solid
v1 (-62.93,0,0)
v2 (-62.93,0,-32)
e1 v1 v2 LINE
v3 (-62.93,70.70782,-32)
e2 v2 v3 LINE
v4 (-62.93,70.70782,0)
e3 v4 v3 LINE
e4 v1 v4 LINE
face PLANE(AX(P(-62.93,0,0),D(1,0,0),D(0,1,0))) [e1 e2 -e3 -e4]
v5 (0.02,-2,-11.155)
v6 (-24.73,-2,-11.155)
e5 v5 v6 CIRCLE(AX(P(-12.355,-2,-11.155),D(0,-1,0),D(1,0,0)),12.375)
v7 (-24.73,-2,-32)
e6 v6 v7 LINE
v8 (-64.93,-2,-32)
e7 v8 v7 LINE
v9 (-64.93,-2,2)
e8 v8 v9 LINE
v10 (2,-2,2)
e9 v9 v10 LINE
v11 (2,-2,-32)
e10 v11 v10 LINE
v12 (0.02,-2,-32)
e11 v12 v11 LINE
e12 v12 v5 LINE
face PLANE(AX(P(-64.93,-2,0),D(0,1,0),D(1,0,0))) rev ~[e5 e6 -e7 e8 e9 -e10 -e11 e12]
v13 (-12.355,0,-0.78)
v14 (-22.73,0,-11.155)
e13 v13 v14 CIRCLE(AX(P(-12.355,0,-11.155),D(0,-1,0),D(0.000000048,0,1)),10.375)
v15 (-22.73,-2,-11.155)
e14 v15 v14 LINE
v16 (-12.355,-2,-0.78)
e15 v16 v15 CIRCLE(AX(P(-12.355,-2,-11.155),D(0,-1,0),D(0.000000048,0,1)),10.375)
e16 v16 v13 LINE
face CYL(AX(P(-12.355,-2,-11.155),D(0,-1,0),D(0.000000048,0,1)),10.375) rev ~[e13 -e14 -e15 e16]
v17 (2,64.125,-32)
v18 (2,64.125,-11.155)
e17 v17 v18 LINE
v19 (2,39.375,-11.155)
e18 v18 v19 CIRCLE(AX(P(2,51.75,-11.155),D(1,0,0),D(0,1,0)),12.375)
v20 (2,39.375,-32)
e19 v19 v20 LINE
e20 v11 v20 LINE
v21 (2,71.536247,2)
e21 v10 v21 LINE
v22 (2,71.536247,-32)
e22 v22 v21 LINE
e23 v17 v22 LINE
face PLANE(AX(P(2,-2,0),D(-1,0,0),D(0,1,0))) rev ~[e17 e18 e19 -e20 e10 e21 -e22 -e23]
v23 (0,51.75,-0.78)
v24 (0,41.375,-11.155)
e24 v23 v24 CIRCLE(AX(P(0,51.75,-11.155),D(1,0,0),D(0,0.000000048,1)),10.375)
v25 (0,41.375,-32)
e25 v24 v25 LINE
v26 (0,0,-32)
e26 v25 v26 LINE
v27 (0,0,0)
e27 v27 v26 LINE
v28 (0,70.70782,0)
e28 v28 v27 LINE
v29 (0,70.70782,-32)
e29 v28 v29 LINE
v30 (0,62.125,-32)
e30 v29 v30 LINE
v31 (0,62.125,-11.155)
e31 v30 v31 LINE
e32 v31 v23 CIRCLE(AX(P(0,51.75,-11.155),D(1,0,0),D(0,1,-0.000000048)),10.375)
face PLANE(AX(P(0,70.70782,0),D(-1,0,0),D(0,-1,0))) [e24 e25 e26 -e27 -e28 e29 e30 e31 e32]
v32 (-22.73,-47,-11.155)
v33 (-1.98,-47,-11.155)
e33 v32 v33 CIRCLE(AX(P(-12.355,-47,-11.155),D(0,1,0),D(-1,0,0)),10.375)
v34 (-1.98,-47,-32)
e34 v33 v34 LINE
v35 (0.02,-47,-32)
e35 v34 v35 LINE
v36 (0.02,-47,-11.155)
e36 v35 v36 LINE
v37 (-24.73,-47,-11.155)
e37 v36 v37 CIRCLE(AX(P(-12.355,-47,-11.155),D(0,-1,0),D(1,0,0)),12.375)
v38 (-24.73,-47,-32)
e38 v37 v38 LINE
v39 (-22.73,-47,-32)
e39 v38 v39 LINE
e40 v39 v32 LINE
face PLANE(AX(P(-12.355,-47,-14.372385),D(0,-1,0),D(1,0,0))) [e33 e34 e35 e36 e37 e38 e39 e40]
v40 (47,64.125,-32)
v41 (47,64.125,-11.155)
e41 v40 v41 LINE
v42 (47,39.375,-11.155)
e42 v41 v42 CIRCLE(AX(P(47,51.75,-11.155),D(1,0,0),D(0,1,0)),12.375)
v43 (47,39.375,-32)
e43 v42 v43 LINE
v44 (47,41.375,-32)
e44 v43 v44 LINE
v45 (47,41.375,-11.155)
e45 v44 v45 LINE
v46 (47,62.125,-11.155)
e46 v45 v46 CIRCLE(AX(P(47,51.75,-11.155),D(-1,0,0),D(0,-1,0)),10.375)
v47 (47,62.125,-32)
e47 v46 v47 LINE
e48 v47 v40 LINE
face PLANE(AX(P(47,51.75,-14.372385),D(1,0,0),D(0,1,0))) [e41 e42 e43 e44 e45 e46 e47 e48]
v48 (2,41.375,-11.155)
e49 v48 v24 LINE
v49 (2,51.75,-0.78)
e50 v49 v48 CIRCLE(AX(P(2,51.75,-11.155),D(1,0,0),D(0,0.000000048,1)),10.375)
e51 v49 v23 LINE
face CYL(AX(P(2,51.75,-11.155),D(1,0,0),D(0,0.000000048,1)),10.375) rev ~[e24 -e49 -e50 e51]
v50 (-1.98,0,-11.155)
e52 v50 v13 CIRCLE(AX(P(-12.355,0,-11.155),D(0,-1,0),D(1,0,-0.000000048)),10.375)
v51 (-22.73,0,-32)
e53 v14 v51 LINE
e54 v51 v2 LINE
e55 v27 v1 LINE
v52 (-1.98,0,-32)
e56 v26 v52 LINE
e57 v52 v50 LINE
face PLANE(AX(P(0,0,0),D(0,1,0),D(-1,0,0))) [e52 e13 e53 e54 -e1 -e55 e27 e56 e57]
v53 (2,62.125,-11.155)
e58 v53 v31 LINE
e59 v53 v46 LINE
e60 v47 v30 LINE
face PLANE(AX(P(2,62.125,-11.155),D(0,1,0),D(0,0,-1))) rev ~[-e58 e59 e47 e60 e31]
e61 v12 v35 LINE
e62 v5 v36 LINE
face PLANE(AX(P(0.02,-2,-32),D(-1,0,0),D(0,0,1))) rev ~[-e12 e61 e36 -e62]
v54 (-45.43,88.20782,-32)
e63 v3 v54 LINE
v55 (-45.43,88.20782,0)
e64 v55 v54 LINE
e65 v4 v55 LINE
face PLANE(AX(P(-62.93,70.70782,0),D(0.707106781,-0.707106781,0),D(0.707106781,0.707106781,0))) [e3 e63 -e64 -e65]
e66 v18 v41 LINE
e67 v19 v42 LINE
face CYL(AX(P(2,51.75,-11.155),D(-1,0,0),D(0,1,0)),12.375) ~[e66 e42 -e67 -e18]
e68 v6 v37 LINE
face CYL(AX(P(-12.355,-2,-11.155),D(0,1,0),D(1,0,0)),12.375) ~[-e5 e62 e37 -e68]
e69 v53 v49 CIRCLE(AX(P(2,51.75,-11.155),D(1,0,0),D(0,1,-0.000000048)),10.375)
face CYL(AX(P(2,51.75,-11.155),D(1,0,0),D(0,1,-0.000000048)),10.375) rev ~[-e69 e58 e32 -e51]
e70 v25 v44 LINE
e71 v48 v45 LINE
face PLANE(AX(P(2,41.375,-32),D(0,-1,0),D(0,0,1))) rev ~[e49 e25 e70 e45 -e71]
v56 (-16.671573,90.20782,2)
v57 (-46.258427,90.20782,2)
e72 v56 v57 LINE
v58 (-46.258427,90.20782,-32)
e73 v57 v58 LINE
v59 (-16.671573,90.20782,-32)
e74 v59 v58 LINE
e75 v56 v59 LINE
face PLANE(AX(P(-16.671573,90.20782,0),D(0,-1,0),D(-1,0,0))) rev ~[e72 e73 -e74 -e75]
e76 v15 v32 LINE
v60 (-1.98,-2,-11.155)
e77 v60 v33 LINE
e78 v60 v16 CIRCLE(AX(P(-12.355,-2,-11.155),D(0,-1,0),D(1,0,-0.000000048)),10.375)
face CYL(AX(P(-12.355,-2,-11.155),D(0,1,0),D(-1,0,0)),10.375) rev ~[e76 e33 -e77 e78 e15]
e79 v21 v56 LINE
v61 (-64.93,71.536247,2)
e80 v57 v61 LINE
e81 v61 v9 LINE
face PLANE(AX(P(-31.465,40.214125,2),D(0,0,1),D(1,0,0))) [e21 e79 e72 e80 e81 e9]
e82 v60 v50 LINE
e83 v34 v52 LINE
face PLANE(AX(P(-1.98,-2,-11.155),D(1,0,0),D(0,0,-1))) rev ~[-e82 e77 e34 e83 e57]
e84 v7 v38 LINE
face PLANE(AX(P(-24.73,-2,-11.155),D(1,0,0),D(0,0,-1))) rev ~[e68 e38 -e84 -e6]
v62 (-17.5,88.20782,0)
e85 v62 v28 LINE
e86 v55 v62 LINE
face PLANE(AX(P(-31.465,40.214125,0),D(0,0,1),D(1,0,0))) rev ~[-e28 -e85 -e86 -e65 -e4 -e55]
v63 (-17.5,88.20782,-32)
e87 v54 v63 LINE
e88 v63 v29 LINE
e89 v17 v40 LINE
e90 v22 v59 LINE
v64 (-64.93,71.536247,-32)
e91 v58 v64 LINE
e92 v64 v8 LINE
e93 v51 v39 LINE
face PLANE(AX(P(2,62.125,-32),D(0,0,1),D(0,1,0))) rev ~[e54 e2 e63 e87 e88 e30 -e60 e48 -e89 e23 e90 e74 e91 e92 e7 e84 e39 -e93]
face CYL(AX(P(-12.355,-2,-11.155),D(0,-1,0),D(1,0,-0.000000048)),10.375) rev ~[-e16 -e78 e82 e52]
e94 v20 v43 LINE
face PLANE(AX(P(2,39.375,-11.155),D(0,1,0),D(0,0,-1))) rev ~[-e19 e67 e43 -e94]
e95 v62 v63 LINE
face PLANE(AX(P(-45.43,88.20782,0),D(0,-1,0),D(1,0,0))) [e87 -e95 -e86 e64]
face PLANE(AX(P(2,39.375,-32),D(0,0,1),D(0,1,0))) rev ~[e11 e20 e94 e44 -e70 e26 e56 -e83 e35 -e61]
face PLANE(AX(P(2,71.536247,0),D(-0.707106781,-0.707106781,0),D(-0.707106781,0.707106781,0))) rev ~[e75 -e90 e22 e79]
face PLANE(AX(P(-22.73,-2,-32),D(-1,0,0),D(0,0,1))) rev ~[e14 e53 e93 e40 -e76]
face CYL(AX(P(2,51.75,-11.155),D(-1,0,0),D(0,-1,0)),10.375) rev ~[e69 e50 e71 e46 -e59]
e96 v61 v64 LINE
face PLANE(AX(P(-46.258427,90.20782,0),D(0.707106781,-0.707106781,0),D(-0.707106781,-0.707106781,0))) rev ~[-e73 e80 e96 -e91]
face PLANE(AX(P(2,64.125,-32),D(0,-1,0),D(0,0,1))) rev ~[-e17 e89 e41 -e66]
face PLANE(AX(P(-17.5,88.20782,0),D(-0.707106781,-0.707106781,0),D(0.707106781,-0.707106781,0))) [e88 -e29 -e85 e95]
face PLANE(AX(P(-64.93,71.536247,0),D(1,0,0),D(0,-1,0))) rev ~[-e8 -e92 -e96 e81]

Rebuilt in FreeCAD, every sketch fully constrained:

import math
import FreeCAD as App
import Part
import Sketcher
from FreeCAD import Vector


def add_polygon(sketch, points):
    """Adds a closed chain of lines whose ends are joined by coincident constraints."""
    first, n = sketch.GeometryCount, len(points)
    for a, b in zip(points, points[1:] + points[:1]):
        sketch.addGeometry(Part.LineSegment(App.Vector(*a, 0), App.Vector(*b, 0)), False)
    for i in range(n):
        sketch.addConstraint(Sketcher.Constraint("Coincident", first + i, 2, first + (i + 1) % n, 1))

doc = App.newDocument("Part")
body = doc.addObject("PartDesign::Body", "Body")

# Sketch on XY plane
sketch1 = body.newObject("Sketcher::SketchObject", "Sketch")
sketch1.AttachmentSupport = (doc.getObject("XY_Plane"), [""])
sketch1.MapMode = "FlatFace"
add_polygon(sketch1, [(2, 72), (-17, 90), (-46, 90), (-65, 72), (-65, -2), (2, -2)])  # lines 0-5
add_polygon(sketch1, [(-18, 88), (0, 71), (0, 0), (-63, 0), (-63, 71), (-45, 88)])  # lines 6-11
sketch1.addConstraint(Sketcher.Constraint("Horizontal", 1))
sketch1.addConstraint(Sketcher.Constraint("Vertical", 3))
sketch1.addConstraint(Sketcher.Constraint("Horizontal", 4))
sketch1.addConstraint(Sketcher.Constraint("Vertical", 5))
sketch1.addConstraint(Sketcher.Constraint("Vertical", 7))
sketch1.addConstraint(Sketcher.Constraint("Horizontal", 8))
sketch1.addConstraint(Sketcher.Constraint("Vertical", 9))
sketch1.addConstraint(Sketcher.Constraint("Horizontal", 11))
sketch1.addConstraint(Sketcher.Constraint("Coincident", 7, 2, -1, 1))
sketch1.addConstraint(Sketcher.Constraint("Perpendicular", 0, 2))
sketch1.addConstraint(Sketcher.Constraint("Perpendicular", 2, 6))
sketch1.addConstraint(Sketcher.Constraint("Perpendicular", 6, 10))
sketch1.addConstraint(Sketcher.Constraint("Horizontal", 2, 2, 5, 2))
sketch1.addConstraint(Sketcher.Constraint("Horizontal", 6, 2, 9, 2))
sketch1.addConstraint(Sketcher.Constraint("Equal", 0, 2))
sketch1.addConstraint(Sketcher.Constraint("DistanceY", 3, 2, -1, 1, 2.0))
sketch1.addConstraint(Sketcher.Constraint("DistanceX", -1, 1, 4, 2, 2.0))
sketch1.addConstraint(Sketcher.Constraint("DistanceX", 3, 2, 8, 2, 2.0))
sketch1.addConstraint(Sketcher.Constraint("DistanceY", 10, 2, 1, 2, 2.0))
sketch1.addConstraint(Sketcher.Constraint("DistanceX", 4, 1, 4, 2, 66.93))
sketch1.addConstraint(Sketcher.Constraint("DistanceX", 11, 1, 11, 2, 27.93))
sketch1.addConstraint(Sketcher.Constraint("DistanceY", 7, 2, 7, 1, 70.70782))
sketch1.addConstraint(Sketcher.Constraint("Distance", 0, 26.405592))
pad1 = body.newObject("PartDesign::Pad", "Pad")
pad1.Profile = sketch1
pad1.Length = 32
pad1.Reversed = True

# Sketch on XY plane
sketch2 = body.newObject("Sketcher::SketchObject", "Sketch001")
sketch2.AttachmentSupport = (doc.getObject("XY_Plane"), [""])
sketch2.MapMode = "FlatFace"
add_polygon(sketch2, [(-65, 72), (-65, -2), (2, -2), (2, 72), (-17, 90), (-46, 90)])  # lines 0-5
sketch2.addConstraint(Sketcher.Constraint("Vertical", 0))
sketch2.addConstraint(Sketcher.Constraint("Horizontal", 1))
sketch2.addConstraint(Sketcher.Constraint("Vertical", 2))
sketch2.addConstraint(Sketcher.Constraint("Horizontal", 4))
sketch2.addConstraint(Sketcher.Constraint("Perpendicular", 3, 5))
sketch2.addConstraint(Sketcher.Constraint("Horizontal", 2, 2, 5, 2))
sketch2.addConstraint(Sketcher.Constraint("Equal", 3, 5))
sketch2.addConstraint(Sketcher.Constraint("DistanceY", 0, 2, -1, 1, 2.0))
sketch2.addConstraint(Sketcher.Constraint("DistanceX", -1, 1, 1, 2, 2.0))
sketch2.addConstraint(Sketcher.Constraint("DistanceX", 1, 1, 1, 2, 66.93))
sketch2.addConstraint(Sketcher.Constraint("Distance", 3, 26.405592))
sketch2.addConstraint(Sketcher.Constraint("DistanceY", 0, 2, 0, 1, 73.536247))
pad2 = body.newObject("PartDesign::Pad", "Pad001")
pad2.Profile = sketch2
pad2.Length = 2

# Sketch on XZ plane
sketch3 = body.newObject("Sketcher::SketchObject", "Sketch002")
sketch3.AttachmentSupport = (doc.getObject("XZ_Plane"), [""])
sketch3.MapMode = "FlatFace"
sketch3.AttachmentOffset = App.Placement(Vector(0, 0, 2), App.Rotation())
sketch3.addGeometry(Part.ArcOfCircle(Part.Circle(Vector(-12, -11, 0), Vector(0, 0, 1), 10), math.radians(90), math.radians(180)), False)
sketch3.addGeometry(Part.LineSegment(Vector(-23, -11, 0), Vector(-23, -32, 0)), False)
sketch3.addGeometry(Part.LineSegment(Vector(-23, -32, 0), Vector(-2, -32, 0)), False)
sketch3.addGeometry(Part.LineSegment(Vector(-2, -32, 0), Vector(-2, -11, 0)), False)
sketch3.addGeometry(Part.ArcOfCircle(Part.Circle(Vector(-12, -11, 0), Vector(0, 0, 1), 10), math.radians(0), math.radians(90)), False)
sketch3.addConstraint(Sketcher.Constraint("Tangent", 0, 2, 1, 1))
sketch3.addConstraint(Sketcher.Constraint("Coincident", 1, 2, 2, 1))
sketch3.addConstraint(Sketcher.Constraint("Coincident", 2, 2, 3, 1))
sketch3.addConstraint(Sketcher.Constraint("Tangent", 3, 2, 4, 1))
sketch3.addConstraint(Sketcher.Constraint("Tangent", 4, 2, 0, 1))
sketch3.addConstraint(Sketcher.Constraint("Vertical", 1))
sketch3.addConstraint(Sketcher.Constraint("Horizontal", 2))
sketch3.addConstraint(Sketcher.Constraint("Vertical", 3))
sketch3.addConstraint(Sketcher.Constraint("Equal", 0, 4))
sketch3.addConstraint(Sketcher.Constraint("Vertical", 0, 3, 4, 2))
sketch3.addConstraint(Sketcher.Constraint("DistanceY", 1, 2, -1, 1, 32.0))
sketch3.addConstraint(Sketcher.Constraint("Radius", 0, 10.375))
sketch3.addConstraint(Sketcher.Constraint("DistanceY", 1, 2, 1, 1, 20.845))
sketch3.addConstraint(Sketcher.Constraint("DistanceX", 0, 2, -1, 1, 22.73))
pocket1 = body.newObject("PartDesign::Pocket", "Pocket")
pocket1.Profile = sketch3
pocket1.Length = 2

# Sketch on YZ plane
sketch4 = body.newObject("Sketcher::SketchObject", "Sketch003")
sketch4.AttachmentSupport = (doc.getObject("YZ_Plane"), [""])
sketch4.MapMode = "FlatFace"
sketch4.AttachmentOffset = App.Placement(Vector(0, 0, 2), App.Rotation())
sketch4.addGeometry(Part.LineSegment(Vector(62, -32, 0), Vector(62, -11, 0)), False)
sketch4.addGeometry(Part.ArcOfCircle(Part.Circle(Vector(52, -11, 0), Vector(0, 0, 1), 10), math.radians(0), math.radians(90)), False)
sketch4.addGeometry(Part.ArcOfCircle(Part.Circle(Vector(52, -11, 0), Vector(0, 0, 1), 10), math.radians(90), math.radians(180)), False)
sketch4.addGeometry(Part.LineSegment(Vector(41, -11, 0), Vector(41, -32, 0)), False)
sketch4.addGeometry(Part.LineSegment(Vector(41, -32, 0), Vector(62, -32, 0)), False)
sketch4.addConstraint(Sketcher.Constraint("Tangent", 0, 2, 1, 1))
sketch4.addConstraint(Sketcher.Constraint("Tangent", 1, 2, 2, 1))
sketch4.addConstraint(Sketcher.Constraint("Tangent", 2, 2, 3, 1))
sketch4.addConstraint(Sketcher.Constraint("Coincident", 3, 2, 4, 1))
sketch4.addConstraint(Sketcher.Constraint("Coincident", 4, 2, 0, 1))
sketch4.addConstraint(Sketcher.Constraint("Vertical", 0))
sketch4.addConstraint(Sketcher.Constraint("Vertical", 3))
sketch4.addConstraint(Sketcher.Constraint("Horizontal", 4))
sketch4.addConstraint(Sketcher.Constraint("Equal", 1, 2))
sketch4.addConstraint(Sketcher.Constraint("Vertical", 2, 3, 1, 2))
sketch4.addConstraint(Sketcher.Constraint("DistanceY", 3, 2, -1, 1, 32.0))
sketch4.addConstraint(Sketcher.Constraint("Radius", 1, 10.375))
sketch4.addConstraint(Sketcher.Constraint("DistanceY", 0, 1, 0, 2, 20.845))
sketch4.addConstraint(Sketcher.Constraint("DistanceX", -1, 1, 1, 3, 51.75))
pocket2 = body.newObject("PartDesign::Pocket", "Pocket001")
pocket2.Profile = sketch4
pocket2.Length = 2

# Sketch on XZ plane
sketch5 = body.newObject("Sketcher::SketchObject", "Sketch004")
sketch5.AttachmentSupport = (doc.getObject("XZ_Plane"), [""])
sketch5.MapMode = "FlatFace"
sketch5.AttachmentOffset = App.Placement(Vector(0, 0, 2), App.Rotation())
sketch5.addGeometry(Part.ArcOfCircle(Part.Circle(Vector(-12.4, -11.2, 0), Vector(0, 0, 1), 12.4), math.radians(0), math.radians(180)), False)
sketch5.addGeometry(Part.LineSegment(Vector(-24.7, -11.2, 0), Vector(-24.7, -32, 0)), False)
sketch5.addGeometry(Part.LineSegment(Vector(-24.7, -32, 0), Vector(-22.7, -32, 0)), False)
sketch5.addGeometry(Part.LineSegment(Vector(-22.7, -32, 0), Vector(-22.7, -11.2, 0)), False)
sketch5.addGeometry(Part.ArcOfCircle(Part.Circle(Vector(-12.4, -11.2, 0), Vector(0, 0, 1), 10.4), math.radians(0), math.radians(180)), False)
sketch5.addGeometry(Part.LineSegment(Vector(-2, -11.2, 0), Vector(-2, -32, 0)), False)
sketch5.addGeometry(Part.LineSegment(Vector(-2, -32, 0), Vector(0, -32, 0)), False)
sketch5.addGeometry(Part.LineSegment(Vector(0, -32, 0), Vector(0, -11.2, 0)), False)
sketch5.addConstraint(Sketcher.Constraint("Tangent", 0, 2, 1, 1))
sketch5.addConstraint(Sketcher.Constraint("Coincident", 1, 2, 2, 1))
sketch5.addConstraint(Sketcher.Constraint("Coincident", 2, 2, 3, 1))
sketch5.addConstraint(Sketcher.Constraint("Tangent", 3, 2, 4, 2))
sketch5.addConstraint(Sketcher.Constraint("Tangent", 4, 1, 5, 1))
sketch5.addConstraint(Sketcher.Constraint("Coincident", 5, 2, 6, 1))
sketch5.addConstraint(Sketcher.Constraint("Coincident", 6, 2, 7, 1))
sketch5.addConstraint(Sketcher.Constraint("Tangent", 7, 2, 0, 1))
sketch5.addConstraint(Sketcher.Constraint("Vertical", 1))
sketch5.addConstraint(Sketcher.Constraint("Horizontal", 2))
sketch5.addConstraint(Sketcher.Constraint("Vertical", 3))
sketch5.addConstraint(Sketcher.Constraint("Vertical", 5))
sketch5.addConstraint(Sketcher.Constraint("Horizontal", 6))
sketch5.addConstraint(Sketcher.Constraint("Vertical", 7))
sketch5.addConstraint(Sketcher.Constraint("Coincident", 4, 3, 0, 3))
sketch5.addConstraint(Sketcher.Constraint("Horizontal", 2, 2, 5, 2))
sketch5.addConstraint(Sketcher.Constraint("DistanceX", 2, 1, 2, 2, 2.0))
sketch5.addConstraint(Sketcher.Constraint("DistanceY", 1, 2, -1, 1, 32.0))
sketch5.addConstraint(Sketcher.Constraint("Radius", 0, 12.375))
sketch5.addConstraint(Sketcher.Constraint("DistanceY", 1, 2, 1, 1, 20.845))
sketch5.addConstraint(Sketcher.Constraint("DistanceX", 0, 2, -1, 1, 24.73))
pad3 = body.newObject("PartDesign::Pad", "Pad002")
pad3.Profile = sketch5
pad3.Length = 45

# Sketch on YZ plane
sketch6 = body.newObject("Sketcher::SketchObject", "Sketch005")
sketch6.AttachmentSupport = (doc.getObject("YZ_Plane"), [""])
sketch6.MapMode = "FlatFace"
sketch6.AttachmentOffset = App.Placement(Vector(0, 0, 2), App.Rotation())
sketch6.addGeometry(Part.ArcOfCircle(Part.Circle(Vector(51.8, -11.2, 0), Vector(0, 0, 1), 12.4), math.radians(0), math.radians(180)), False)
sketch6.addGeometry(Part.LineSegment(Vector(39.4, -11.2, 0), Vector(39.4, -32, 0)), False)
sketch6.addGeometry(Part.LineSegment(Vector(39.4, -32, 0), Vector(41.4, -32, 0)), False)
sketch6.addGeometry(Part.LineSegment(Vector(41.4, -32, 0), Vector(41.4, -11.2, 0)), False)
sketch6.addGeometry(Part.ArcOfCircle(Part.Circle(Vector(51.8, -11.2, 0), Vector(0, 0, 1), 10.4), math.radians(0), math.radians(180)), False)
sketch6.addGeometry(Part.LineSegment(Vector(62.1, -11.2, 0), Vector(62.1, -32, 0)), False)
sketch6.addGeometry(Part.LineSegment(Vector(62.1, -32, 0), Vector(64.1, -32, 0)), False)
sketch6.addGeometry(Part.LineSegment(Vector(64.1, -32, 0), Vector(64.1, -11.2, 0)), False)
sketch6.addConstraint(Sketcher.Constraint("Tangent", 0, 2, 1, 1))
sketch6.addConstraint(Sketcher.Constraint("Coincident", 1, 2, 2, 1))
sketch6.addConstraint(Sketcher.Constraint("Coincident", 2, 2, 3, 1))
sketch6.addConstraint(Sketcher.Constraint("Tangent", 3, 2, 4, 2))
sketch6.addConstraint(Sketcher.Constraint("Tangent", 4, 1, 5, 1))
sketch6.addConstraint(Sketcher.Constraint("Coincident", 5, 2, 6, 1))
sketch6.addConstraint(Sketcher.Constraint("Coincident", 6, 2, 7, 1))
sketch6.addConstraint(Sketcher.Constraint("Tangent", 7, 2, 0, 1))
sketch6.addConstraint(Sketcher.Constraint("Vertical", 1))
sketch6.addConstraint(Sketcher.Constraint("Horizontal", 2))
sketch6.addConstraint(Sketcher.Constraint("Vertical", 3))
sketch6.addConstraint(Sketcher.Constraint("Vertical", 5))
sketch6.addConstraint(Sketcher.Constraint("Horizontal", 6))
sketch6.addConstraint(Sketcher.Constraint("Vertical", 7))
sketch6.addConstraint(Sketcher.Constraint("Coincident", 4, 3, 0, 3))
sketch6.addConstraint(Sketcher.Constraint("Horizontal", 2, 2, 5, 2))
sketch6.addConstraint(Sketcher.Constraint("DistanceX", 2, 1, 2, 2, 2.0))
sketch6.addConstraint(Sketcher.Constraint("DistanceY", 1, 2, -1, 1, 32.0))
sketch6.addConstraint(Sketcher.Constraint("Radius", 0, 12.375))
sketch6.addConstraint(Sketcher.Constraint("DistanceY", 1, 2, 1, 1, 20.845))
sketch6.addConstraint(Sketcher.Constraint("DistanceX", -1, 1, 0, 3, 51.75))
pad4 = body.newObject("PartDesign::Pad", "Pad003")
pad4.Profile = sketch6
pad4.Length = 45

doc.recompute()
